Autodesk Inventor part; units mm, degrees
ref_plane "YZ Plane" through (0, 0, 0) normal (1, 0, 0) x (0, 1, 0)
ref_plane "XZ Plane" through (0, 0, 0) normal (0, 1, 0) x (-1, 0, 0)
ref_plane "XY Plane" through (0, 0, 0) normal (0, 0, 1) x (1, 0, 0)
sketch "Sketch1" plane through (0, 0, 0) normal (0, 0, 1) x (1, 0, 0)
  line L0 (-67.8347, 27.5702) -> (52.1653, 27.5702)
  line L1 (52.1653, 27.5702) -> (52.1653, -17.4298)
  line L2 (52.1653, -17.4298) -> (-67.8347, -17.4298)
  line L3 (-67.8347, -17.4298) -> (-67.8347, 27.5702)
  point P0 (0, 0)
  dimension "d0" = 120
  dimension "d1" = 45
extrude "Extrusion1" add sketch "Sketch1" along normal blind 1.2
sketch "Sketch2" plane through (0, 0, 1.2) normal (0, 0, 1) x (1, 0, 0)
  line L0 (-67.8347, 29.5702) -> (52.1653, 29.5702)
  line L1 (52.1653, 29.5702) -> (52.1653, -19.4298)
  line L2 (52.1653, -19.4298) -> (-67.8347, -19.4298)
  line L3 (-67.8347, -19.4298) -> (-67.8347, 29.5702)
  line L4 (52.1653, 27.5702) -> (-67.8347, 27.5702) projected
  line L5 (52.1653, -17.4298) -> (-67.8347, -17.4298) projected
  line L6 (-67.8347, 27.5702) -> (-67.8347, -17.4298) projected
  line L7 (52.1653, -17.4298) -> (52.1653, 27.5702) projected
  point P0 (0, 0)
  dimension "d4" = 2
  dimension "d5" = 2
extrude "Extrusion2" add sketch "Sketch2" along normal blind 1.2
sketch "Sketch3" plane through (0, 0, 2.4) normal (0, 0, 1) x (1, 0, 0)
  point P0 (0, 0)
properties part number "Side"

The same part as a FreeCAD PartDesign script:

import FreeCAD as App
import Part
import Sketcher
from FreeCAD import Vector


def add_polygon(sketch, points):
    """Adds a closed chain of lines whose ends are joined by coincident constraints."""
    first, n = sketch.GeometryCount, len(points)
    for a, b in zip(points, points[1:] + points[:1]):
        sketch.addGeometry(Part.LineSegment(App.Vector(*a, 0), App.Vector(*b, 0)), False)
    for i in range(n):
        sketch.addConstraint(Sketcher.Constraint("Coincident", first + i, 2, first + (i + 1) % n, 1))

doc = App.newDocument("Part")
body = doc.addObject("PartDesign::Body", "Body")

# Sketch on XY plane
sketch1 = body.newObject("Sketcher::SketchObject", "Sketch")
sketch1.AttachmentSupport = (doc.getObject("XY_Plane"), [""])
sketch1.MapMode = "FlatFace"
add_polygon(sketch1, [(52, 28), (-68, 28), (-68, -17), (52, -17)])  # lines 0-3
sketch1.addConstraint(Sketcher.Constraint("Horizontal", 0))
sketch1.addConstraint(Sketcher.Constraint("Vertical", 1))
sketch1.addConstraint(Sketcher.Constraint("Horizontal", 2))
sketch1.addConstraint(Sketcher.Constraint("Vertical", 3))
sketch1.addConstraint(Sketcher.Constraint("DistanceX", 0, 2, 0, 1, 120.0))
sketch1.addConstraint(Sketcher.Constraint("DistanceY", 1, 2, 1, 1, 45.0))
sketch1.addConstraint(Sketcher.Constraint("DistanceX", 0, 2, -1, 1, 67.8347))
sketch1.addConstraint(Sketcher.Constraint("DistanceY", -1, 1, 0, 2, 27.5702))
pad1 = body.newObject("PartDesign::Pad", "Pad")
pad1.Profile = sketch1
pad1.Length = 1.2

# Sketch on XY plane
sketch2 = body.newObject("Sketcher::SketchObject", "Sketch001")
sketch2.AttachmentSupport = (doc.getObject("XY_Plane"), [""])
sketch2.MapMode = "FlatFace"
sketch2.AttachmentOffset = App.Placement(Vector(0, 0, 1.2), App.Rotation())
add_polygon(sketch2, [(52, 30), (-68, 30), (-68, -19), (52, -19)])  # lines 0-3
sketch2.addConstraint(Sketcher.Constraint("Horizontal", 0))
sketch2.addConstraint(Sketcher.Constraint("Vertical", 1))
sketch2.addConstraint(Sketcher.Constraint("Horizontal", 2))
sketch2.addConstraint(Sketcher.Constraint("Vertical", 3))
sketch2.addConstraint(Sketcher.Constraint("DistanceX", 0, 2, 0, 1, 120.0))
sketch2.addConstraint(Sketcher.Constraint("DistanceY", 1, 2, 1, 1, 49.0))
sketch2.addConstraint(Sketcher.Constraint("DistanceX", 0, 2, -1, 1, 67.8347))
sketch2.addConstraint(Sketcher.Constraint("DistanceY", -1, 1, 0, 2, 29.5702))
pad2 = body.newObject("PartDesign::Pad", "Pad001")
pad2.Profile = sketch2
pad2.Length = 1.2

doc.recompute()
